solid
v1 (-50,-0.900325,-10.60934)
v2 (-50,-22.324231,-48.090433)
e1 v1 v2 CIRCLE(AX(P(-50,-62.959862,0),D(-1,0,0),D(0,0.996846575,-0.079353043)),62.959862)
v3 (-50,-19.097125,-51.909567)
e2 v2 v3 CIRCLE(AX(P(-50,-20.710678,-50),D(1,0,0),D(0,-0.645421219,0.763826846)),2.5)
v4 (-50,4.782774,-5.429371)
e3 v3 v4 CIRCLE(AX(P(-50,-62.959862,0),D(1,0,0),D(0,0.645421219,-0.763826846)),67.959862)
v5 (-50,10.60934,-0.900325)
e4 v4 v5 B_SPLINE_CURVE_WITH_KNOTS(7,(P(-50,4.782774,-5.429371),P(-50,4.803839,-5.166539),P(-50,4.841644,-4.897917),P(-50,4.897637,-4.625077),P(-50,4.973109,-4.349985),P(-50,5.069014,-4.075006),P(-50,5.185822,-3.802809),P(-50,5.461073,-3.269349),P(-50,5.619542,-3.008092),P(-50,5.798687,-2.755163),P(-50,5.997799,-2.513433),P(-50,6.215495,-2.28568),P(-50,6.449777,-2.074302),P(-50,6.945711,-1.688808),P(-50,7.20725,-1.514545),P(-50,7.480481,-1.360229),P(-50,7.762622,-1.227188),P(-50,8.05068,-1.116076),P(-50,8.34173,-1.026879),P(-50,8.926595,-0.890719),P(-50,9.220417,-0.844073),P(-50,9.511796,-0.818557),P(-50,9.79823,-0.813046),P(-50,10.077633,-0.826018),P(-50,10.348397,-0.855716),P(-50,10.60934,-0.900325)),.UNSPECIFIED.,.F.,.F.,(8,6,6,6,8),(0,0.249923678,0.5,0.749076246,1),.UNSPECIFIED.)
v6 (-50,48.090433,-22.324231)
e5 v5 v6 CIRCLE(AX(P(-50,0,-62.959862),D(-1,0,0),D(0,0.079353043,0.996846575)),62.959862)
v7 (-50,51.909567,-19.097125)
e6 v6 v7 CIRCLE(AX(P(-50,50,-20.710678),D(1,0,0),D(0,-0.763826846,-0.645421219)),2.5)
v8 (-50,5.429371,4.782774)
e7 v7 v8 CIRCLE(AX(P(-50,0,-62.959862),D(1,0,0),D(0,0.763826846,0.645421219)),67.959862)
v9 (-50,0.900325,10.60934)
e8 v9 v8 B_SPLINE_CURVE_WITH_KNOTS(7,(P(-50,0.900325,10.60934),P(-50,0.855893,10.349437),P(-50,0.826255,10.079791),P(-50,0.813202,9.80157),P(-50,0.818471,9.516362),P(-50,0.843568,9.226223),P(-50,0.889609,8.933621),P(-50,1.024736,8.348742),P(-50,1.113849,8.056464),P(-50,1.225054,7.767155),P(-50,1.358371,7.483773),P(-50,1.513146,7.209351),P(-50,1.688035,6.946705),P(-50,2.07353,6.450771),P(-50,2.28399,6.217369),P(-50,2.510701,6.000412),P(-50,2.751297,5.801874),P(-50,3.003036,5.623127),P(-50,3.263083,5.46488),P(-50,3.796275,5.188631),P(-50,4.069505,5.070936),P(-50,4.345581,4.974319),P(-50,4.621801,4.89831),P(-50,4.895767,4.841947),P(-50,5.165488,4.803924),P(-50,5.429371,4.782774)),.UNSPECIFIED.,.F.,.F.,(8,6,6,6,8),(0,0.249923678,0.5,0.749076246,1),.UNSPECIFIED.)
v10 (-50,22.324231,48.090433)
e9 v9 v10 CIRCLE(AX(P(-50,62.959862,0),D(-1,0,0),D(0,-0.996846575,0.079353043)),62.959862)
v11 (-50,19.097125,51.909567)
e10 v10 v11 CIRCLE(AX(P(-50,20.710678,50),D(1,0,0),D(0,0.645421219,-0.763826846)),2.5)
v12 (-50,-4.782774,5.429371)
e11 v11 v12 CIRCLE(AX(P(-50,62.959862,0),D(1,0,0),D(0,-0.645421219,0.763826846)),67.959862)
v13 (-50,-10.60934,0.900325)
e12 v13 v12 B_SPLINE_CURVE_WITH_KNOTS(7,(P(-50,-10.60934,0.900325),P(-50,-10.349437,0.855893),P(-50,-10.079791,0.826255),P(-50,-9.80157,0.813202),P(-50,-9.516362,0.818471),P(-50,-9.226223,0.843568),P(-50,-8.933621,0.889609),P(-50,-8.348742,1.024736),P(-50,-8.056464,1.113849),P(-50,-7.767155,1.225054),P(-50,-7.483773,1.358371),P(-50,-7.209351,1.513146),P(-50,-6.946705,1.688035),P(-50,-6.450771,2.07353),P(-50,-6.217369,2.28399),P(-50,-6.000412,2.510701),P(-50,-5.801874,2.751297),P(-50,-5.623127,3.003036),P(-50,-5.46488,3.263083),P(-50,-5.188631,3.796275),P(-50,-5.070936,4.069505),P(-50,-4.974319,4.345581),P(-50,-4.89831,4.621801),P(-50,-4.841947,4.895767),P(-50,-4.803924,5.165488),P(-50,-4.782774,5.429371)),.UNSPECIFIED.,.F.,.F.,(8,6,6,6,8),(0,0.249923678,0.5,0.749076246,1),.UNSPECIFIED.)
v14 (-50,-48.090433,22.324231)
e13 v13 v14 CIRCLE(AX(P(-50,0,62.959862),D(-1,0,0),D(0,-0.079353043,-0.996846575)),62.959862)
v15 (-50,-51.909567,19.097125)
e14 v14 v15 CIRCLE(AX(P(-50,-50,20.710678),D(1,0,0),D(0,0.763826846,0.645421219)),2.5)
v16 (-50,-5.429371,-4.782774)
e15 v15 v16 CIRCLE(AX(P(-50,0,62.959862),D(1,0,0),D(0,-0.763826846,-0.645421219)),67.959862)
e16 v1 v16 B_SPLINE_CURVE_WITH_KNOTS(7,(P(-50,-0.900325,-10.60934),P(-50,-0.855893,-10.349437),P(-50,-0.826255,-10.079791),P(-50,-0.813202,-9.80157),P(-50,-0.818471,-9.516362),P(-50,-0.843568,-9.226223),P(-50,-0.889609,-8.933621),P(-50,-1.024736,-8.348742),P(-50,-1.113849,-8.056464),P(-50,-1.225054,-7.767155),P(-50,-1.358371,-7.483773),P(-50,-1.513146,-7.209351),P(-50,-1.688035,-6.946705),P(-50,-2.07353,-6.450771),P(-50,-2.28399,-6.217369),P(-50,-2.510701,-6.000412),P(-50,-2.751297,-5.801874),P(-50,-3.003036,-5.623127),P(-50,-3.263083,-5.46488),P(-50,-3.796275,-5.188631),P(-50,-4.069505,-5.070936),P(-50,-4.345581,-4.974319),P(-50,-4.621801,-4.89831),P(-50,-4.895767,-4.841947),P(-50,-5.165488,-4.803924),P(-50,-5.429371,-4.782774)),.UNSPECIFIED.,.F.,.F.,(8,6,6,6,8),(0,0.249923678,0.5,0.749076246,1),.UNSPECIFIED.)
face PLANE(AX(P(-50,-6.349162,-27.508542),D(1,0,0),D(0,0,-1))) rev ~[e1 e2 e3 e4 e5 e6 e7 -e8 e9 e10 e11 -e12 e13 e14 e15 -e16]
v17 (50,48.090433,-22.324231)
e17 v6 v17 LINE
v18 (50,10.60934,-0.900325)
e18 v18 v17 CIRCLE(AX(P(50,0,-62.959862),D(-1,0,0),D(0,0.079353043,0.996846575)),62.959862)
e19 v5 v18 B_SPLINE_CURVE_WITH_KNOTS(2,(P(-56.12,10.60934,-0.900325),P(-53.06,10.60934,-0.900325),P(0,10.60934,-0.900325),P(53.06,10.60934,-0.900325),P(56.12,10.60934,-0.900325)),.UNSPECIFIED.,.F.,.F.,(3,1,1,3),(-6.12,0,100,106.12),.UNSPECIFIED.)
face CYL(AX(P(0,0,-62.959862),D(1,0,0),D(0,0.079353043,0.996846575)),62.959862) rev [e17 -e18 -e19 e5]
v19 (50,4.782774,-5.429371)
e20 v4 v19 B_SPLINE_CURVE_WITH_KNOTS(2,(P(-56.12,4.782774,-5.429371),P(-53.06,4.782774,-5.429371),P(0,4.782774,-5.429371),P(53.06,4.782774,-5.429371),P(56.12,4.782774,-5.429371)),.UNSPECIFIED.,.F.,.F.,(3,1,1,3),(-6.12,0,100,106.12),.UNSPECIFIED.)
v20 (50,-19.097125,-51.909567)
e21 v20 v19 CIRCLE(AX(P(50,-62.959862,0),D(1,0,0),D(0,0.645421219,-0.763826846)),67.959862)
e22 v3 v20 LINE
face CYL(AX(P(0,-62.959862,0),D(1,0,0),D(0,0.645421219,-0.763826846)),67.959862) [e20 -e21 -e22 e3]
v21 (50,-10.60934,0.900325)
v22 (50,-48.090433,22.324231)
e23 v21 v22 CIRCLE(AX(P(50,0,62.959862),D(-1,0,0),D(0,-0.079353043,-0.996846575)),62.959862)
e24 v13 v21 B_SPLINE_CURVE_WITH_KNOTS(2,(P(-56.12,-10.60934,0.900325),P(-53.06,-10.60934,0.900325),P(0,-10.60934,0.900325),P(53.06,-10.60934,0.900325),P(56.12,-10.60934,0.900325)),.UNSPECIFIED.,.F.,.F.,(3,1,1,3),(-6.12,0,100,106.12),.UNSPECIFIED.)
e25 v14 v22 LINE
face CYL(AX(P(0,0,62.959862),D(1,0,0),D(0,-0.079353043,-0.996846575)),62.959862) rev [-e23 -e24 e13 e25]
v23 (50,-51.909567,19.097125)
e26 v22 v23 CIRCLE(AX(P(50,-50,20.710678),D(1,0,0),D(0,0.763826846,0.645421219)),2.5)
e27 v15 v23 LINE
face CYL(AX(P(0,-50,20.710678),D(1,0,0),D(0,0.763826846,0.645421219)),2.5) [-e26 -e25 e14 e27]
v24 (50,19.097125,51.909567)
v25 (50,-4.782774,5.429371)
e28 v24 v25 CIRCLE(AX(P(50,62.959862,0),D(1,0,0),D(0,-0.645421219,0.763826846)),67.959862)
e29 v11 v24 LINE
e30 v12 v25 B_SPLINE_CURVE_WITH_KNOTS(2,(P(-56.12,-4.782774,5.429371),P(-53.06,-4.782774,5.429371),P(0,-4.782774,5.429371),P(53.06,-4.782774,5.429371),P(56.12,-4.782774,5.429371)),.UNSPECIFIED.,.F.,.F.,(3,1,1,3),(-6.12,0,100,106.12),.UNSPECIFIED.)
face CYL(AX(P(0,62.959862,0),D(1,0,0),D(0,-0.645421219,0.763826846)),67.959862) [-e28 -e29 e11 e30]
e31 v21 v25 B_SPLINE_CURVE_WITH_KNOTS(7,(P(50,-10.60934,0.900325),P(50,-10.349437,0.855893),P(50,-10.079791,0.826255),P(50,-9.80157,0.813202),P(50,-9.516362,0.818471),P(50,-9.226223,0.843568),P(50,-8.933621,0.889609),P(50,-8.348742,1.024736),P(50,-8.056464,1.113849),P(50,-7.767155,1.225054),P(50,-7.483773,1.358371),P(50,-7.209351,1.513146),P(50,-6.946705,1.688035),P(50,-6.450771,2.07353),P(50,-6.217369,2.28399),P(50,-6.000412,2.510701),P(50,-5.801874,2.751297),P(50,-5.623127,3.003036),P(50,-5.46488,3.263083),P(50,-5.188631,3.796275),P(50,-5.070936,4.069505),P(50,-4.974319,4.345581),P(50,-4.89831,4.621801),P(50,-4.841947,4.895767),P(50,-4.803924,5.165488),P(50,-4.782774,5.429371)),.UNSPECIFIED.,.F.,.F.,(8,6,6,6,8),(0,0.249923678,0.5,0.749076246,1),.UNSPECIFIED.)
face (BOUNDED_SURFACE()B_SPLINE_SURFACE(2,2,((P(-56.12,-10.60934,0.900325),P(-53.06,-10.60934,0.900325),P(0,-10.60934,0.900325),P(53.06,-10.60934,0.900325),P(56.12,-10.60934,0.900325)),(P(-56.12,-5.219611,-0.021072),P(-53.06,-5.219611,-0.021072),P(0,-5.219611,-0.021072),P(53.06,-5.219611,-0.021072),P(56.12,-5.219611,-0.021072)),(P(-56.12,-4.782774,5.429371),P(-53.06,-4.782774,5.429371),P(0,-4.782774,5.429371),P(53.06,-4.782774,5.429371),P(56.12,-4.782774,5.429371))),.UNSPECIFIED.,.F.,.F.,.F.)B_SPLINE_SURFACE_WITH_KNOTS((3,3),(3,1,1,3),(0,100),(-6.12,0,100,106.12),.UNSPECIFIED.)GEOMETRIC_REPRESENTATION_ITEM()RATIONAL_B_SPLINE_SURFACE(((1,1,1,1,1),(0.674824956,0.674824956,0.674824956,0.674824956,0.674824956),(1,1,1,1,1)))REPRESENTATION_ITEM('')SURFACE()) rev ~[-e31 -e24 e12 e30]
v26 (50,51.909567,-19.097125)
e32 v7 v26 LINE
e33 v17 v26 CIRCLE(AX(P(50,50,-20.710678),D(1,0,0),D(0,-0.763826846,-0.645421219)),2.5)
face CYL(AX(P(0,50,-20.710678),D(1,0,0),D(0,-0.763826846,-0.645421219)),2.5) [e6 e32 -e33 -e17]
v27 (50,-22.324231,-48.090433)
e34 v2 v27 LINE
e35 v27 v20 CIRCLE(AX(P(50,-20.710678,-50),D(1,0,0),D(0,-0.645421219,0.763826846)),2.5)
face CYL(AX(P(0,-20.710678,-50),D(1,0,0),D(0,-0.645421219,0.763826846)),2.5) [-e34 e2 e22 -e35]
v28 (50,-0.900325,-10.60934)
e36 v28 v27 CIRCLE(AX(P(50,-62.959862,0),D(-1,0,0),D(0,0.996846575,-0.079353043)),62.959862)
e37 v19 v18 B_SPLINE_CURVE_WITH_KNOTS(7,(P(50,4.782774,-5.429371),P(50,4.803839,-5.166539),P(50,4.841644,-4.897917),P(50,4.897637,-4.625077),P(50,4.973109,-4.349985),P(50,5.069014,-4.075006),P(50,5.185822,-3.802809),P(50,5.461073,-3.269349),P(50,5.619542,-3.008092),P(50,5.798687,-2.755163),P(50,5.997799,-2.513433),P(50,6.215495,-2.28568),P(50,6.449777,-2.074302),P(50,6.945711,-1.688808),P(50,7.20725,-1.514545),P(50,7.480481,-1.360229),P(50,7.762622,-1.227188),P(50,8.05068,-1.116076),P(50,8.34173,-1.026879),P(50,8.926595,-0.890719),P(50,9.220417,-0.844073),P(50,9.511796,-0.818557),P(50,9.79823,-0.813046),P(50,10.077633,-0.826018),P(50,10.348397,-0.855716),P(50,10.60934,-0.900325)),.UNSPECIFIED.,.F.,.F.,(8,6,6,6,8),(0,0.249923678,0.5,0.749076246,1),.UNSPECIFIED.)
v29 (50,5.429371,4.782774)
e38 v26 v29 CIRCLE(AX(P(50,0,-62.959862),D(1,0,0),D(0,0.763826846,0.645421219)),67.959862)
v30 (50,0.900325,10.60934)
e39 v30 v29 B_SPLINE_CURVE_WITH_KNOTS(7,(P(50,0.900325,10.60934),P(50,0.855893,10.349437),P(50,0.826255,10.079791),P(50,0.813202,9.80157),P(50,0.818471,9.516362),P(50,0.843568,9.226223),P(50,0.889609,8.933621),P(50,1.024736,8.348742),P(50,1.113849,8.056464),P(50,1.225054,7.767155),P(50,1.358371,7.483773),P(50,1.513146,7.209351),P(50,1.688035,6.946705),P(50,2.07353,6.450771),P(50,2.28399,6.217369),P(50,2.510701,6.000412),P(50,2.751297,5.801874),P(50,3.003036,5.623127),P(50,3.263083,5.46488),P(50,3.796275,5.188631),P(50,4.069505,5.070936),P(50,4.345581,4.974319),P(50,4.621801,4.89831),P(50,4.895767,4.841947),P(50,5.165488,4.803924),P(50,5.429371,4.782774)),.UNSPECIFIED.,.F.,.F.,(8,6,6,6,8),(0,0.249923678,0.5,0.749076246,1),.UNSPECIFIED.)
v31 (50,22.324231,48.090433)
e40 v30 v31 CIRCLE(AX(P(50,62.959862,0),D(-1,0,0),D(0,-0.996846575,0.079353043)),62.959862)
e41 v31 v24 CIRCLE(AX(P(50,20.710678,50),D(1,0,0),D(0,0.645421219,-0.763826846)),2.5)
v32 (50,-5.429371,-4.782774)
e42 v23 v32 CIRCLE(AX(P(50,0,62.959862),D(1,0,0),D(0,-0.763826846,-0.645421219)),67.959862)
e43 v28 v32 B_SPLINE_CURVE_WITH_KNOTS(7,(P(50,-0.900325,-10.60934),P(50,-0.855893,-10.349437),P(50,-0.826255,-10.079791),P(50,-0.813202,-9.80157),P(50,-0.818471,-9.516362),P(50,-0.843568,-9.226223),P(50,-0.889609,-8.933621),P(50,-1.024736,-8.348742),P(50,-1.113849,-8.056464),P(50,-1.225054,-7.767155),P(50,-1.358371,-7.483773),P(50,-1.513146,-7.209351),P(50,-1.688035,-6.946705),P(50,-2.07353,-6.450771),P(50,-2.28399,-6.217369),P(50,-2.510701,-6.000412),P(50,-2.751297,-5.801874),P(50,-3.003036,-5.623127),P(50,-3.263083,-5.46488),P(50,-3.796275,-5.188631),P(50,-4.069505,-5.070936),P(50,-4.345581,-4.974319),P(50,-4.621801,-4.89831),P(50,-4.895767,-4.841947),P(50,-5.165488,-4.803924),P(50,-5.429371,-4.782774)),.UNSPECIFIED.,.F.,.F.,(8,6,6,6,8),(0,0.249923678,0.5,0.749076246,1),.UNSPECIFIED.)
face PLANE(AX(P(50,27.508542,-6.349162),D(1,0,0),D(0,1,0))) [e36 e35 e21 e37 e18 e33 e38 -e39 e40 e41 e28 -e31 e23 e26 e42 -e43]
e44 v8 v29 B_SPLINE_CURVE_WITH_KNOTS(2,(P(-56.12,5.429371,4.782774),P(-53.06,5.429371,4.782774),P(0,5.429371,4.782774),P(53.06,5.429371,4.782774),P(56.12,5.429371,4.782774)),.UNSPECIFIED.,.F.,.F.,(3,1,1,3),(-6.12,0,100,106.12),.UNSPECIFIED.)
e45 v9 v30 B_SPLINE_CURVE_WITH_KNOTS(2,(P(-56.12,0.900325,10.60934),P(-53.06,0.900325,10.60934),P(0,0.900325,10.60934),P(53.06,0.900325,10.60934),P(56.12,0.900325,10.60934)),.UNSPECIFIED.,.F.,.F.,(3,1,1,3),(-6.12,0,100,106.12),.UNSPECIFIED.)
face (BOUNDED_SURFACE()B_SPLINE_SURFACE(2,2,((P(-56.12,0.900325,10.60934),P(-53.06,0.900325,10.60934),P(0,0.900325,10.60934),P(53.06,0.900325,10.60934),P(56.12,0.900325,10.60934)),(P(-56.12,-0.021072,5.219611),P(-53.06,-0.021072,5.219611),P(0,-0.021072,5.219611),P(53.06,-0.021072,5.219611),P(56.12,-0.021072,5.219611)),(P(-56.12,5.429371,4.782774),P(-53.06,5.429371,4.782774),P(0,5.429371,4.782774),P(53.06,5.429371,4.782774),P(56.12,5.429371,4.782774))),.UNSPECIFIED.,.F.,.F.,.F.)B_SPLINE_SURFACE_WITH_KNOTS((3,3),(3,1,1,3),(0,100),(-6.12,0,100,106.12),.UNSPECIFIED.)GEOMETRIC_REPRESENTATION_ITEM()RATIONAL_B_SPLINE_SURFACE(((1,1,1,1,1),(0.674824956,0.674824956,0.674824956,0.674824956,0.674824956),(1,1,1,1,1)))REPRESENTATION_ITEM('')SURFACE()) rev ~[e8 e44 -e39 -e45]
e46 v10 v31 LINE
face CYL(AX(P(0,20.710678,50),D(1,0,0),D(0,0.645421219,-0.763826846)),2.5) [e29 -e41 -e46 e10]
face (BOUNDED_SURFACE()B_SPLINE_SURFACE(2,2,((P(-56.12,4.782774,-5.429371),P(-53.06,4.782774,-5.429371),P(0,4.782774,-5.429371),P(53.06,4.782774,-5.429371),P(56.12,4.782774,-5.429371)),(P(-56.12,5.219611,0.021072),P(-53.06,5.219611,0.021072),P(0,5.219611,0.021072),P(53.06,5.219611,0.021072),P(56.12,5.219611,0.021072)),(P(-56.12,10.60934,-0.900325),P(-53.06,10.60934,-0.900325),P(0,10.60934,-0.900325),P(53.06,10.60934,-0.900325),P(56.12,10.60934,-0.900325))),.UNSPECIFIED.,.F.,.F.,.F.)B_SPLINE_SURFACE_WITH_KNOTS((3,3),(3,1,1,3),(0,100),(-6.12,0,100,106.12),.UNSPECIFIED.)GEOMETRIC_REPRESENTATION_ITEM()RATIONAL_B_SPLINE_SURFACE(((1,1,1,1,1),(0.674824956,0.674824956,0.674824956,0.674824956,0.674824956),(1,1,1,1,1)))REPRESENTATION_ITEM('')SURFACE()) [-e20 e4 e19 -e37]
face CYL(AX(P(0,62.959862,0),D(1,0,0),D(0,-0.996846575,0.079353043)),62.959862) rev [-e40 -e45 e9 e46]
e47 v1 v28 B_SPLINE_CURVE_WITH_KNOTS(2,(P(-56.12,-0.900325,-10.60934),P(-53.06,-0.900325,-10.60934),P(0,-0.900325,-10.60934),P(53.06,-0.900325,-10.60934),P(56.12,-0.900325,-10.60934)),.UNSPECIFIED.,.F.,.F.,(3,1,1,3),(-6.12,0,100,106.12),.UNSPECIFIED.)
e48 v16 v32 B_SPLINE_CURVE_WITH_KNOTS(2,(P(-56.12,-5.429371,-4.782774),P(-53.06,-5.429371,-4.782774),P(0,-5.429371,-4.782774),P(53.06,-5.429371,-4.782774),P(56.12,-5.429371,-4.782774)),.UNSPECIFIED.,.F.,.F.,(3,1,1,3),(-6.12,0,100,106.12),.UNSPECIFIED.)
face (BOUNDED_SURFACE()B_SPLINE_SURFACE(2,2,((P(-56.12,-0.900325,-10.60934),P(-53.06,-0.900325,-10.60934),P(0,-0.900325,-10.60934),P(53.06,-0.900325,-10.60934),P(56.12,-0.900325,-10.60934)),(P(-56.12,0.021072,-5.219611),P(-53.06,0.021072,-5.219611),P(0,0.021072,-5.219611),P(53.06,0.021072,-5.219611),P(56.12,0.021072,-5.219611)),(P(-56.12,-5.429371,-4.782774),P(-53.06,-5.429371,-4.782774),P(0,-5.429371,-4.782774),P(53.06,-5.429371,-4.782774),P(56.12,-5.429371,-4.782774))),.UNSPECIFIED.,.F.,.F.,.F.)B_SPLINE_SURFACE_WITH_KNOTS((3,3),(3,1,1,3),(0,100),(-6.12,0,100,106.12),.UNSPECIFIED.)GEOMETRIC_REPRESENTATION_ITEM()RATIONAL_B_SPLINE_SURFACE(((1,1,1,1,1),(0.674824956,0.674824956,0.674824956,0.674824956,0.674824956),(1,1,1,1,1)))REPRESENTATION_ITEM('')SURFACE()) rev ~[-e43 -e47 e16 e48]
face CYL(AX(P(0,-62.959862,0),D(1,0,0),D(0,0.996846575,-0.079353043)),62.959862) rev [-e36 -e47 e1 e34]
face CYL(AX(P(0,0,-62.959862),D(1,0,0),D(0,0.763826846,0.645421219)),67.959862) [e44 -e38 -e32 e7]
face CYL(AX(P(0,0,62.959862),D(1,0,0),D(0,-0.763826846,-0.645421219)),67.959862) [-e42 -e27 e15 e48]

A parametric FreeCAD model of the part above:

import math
import FreeCAD as App
import Part
import Sketcher


def edges_at(feature, points):
    """Names of the edges that pass closest to the given points."""
    edges = feature.Shape.Edges
    near = lambda p: min(range(len(edges)), key=lambda i: edges[i].distToShape(Part.Vertex(*p))[0])
    return sorted({f"Edge{near(p) + 1}" for p in points})

doc = App.newDocument("Part")
body = doc.addObject("PartDesign::Body", "Body")

sketch1 = body.newObject("Sketcher::SketchObject", "Sketch")
sketch1.AttachmentSupport = (doc.getObject("YZ_Plane"), [""])
sketch1.MapMode = "FlatFace"
sketch1.addGeometry(Part.ArcOfCircle(Part.Circle(App.Vector(0, -63, 0), App.Vector(0, 0, 1), 63), math.radians(40), math.radians(85)), False)
sketch1.addGeometry(Part.ArcOfCircle(Part.Circle(App.Vector(50, -20.7, 0), App.Vector(0, 0, 1), 2.5), math.radians(-140), math.radians(40)), False)
sketch1.addGeometry(Part.ArcOfCircle(Part.Circle(App.Vector(0, -63, 0), App.Vector(0, 0, 1), 68), math.radians(40), math.radians(90)), False)
sketch1.addGeometry(Part.ArcOfCircle(Part.Circle(App.Vector(0, 0, 0), App.Vector(0, 0, 1), 5), math.radians(90), math.radians(358)), False)
sketch1.addConstraint(Sketcher.Constraint("Tangent", 0, 1, 1, 1))
sketch1.addConstraint(Sketcher.Constraint("Tangent", 1, 2, 2, 1))
sketch1.addConstraint(Sketcher.Constraint("Tangent", 2, 2, 3, 1))
sketch1.addConstraint(Sketcher.Constraint("Coincident", 3, 2, 0, 2))
sketch1.addConstraint(Sketcher.Constraint("Coincident", 3, 3, -1, 1))
sketch1.addConstraint(Sketcher.Constraint("Coincident", 2, 3, 0, 3))
sketch1.addConstraint(Sketcher.Constraint("PointOnObject", 0, 3, -2))
sketch1.addConstraint(Sketcher.Constraint("Radius", 3, 5.0))
sketch1.addConstraint(Sketcher.Constraint("Radius", 1, 2.5))
sketch1.addConstraint(Sketcher.Constraint("DistanceX", -1, 1, 1, 3, 50.0))
sketch1.addConstraint(Sketcher.Constraint("Radius", 0, 62.959862))
pad1 = body.newObject("PartDesign::Pad", "Pad")
pad1.Profile = sketch1
pad1.Length = 100
pad1.Midplane = True
body2 = doc.addObject("PartDesign::Body", "Body001")
doc.recompute()

body2.BaseFeature = body
doc.recompute()

body3 = doc.addObject("PartDesign::Body", "Body002")
body3.BaseFeature = body
body3.Placement = App.Placement(App.Vector(0, 0, 0), App.Rotation(App.Vector(1, 0, 0), 90))
boolean = body2.newObject("PartDesign::Boolean", "Boolean")
boolean.Type = "Fuse"
boolean.addObjects([body3])
doc.recompute()

body4 = doc.addObject("PartDesign::Body", "Body003")
body4.BaseFeature = body
body4.Placement = App.Placement(App.Vector(0, 0, 0), App.Rotation(App.Vector(1, 0, 0), 180))
boolean2 = body2.newObject("PartDesign::Boolean", "Boolean001")
boolean2.Type = "Fuse"
boolean2.addObjects([body4])
doc.recompute()

body.Placement = App.Placement(App.Vector(0, 0, 0), App.Rotation(App.Vector(1, 0, 0), 270))
boolean3 = body2.newObject("PartDesign::Boolean", "Boolean002")
boolean3.Type = "Fuse"
boolean3.addObjects([body])
doc.recompute()

fillet = body2.newObject("PartDesign::Fillet", "Fillet")
fillet.Base = (boolean3, edges_at(boolean3, [
    (0, 5, -0.199),
    (0, -0.199, -5),
    (0, -5, 0.199),
    (0, 0.199, 5),
]))
fillet.Radius = 5

doc.recompute()
